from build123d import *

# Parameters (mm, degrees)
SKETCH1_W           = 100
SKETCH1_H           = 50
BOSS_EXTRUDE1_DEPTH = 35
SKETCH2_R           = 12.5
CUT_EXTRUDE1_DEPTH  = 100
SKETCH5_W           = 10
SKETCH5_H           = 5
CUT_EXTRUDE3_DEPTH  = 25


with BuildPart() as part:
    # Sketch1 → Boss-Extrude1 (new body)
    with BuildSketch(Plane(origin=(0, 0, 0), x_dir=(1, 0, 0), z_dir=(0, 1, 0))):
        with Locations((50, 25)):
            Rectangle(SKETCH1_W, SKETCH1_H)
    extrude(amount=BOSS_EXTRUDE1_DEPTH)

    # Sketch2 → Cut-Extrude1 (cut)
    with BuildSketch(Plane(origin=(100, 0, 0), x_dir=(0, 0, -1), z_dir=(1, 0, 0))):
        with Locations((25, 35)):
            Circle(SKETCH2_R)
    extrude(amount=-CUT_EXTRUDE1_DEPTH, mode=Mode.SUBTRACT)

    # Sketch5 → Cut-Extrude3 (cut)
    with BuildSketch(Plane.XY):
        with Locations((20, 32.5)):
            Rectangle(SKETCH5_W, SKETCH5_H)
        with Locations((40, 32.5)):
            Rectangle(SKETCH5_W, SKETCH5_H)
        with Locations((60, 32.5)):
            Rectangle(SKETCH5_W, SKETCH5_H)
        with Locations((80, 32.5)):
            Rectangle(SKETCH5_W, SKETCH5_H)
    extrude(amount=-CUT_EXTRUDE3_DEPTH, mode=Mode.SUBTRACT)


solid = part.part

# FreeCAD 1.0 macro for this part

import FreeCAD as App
import Part
import Sketcher

V = App.Vector


def add_polygon(sketch, points):
    """Adds a closed chain of lines whose ends are joined by coincident constraints."""
    first, n = sketch.GeometryCount, len(points)
    for a, b in zip(points, points[1:] + points[:1]):
        sketch.addGeometry(Part.LineSegment(App.Vector(*a, 0), App.Vector(*b, 0)), False)
    for i in range(n):
        sketch.addConstraint(Sketcher.Constraint("Coincident", first + i, 2, first + (i + 1) % n, 1))

doc = App.newDocument("Part")
body = doc.addObject("PartDesign::Body", "Body")

sketch1 = doc.addObject("Sketcher::SketchObject", "Sketch")
body.addObject(sketch1)
sketch1.AttachmentSupport = (doc.XZ_Plane, [""])
sketch1.MapMode = "FlatFace"
add_polygon(sketch1, [(0, -50), (0, 0), (100, 0), (100, -50)])
sketch1.addConstraint([
    Sketcher.Constraint("Vertical", 0),
    Sketcher.Constraint("Horizontal", 1),
    Sketcher.Constraint("Vertical", 2),
    Sketcher.Constraint("Horizontal", 3),
    Sketcher.Constraint("Coincident", 0, 2, -1, 1),
    Sketcher.Constraint("DistanceX", 1, 1, 1, 2, 100.0),
    Sketcher.Constraint("DistanceY", 0, 1, 0, 2, 50.0),
])
pad1 = doc.addObject("PartDesign::Pad", "Pad")
body.addObject(pad1)
pad1.Profile = sketch1
pad1.Length = 35
pad1.Reversed = True

sketch2 = doc.addObject("Sketcher::SketchObject", "Sketch001")
body.addObject(sketch2)
sketch2.AttachmentSupport = (doc.YZ_Plane, [""])
sketch2.MapMode = "FlatFace"
sketch2.AttachmentOffset = App.Placement(V(0, 0, 100), App.Rotation())
sketch2.addGeometry(Part.Circle(V(35, -25, 0), V(0, 0, 1), 12), False)
sketch2.addConstraint([
    Sketcher.Constraint("Diameter", 0, 25.0),
    Sketcher.Constraint("DistanceX", -1, 1, 0, 3, 35.0),
    Sketcher.Constraint("DistanceY", 0, 3, -1, 1, 25.0),
])
pocket1 = doc.addObject("PartDesign::Pocket", "Pocket")
body.addObject(pocket1)
pocket1.Profile = sketch2
pocket1.Length = 100

sketch3 = doc.addObject("Sketcher::SketchObject", "Sketch002")
body.addObject(sketch3)
sketch3.AttachmentSupport = (doc.XY_Plane, [""])
sketch3.MapMode = "FlatFace"
add_polygon(sketch3, [(15, 35), (15, 30), (25, 30), (25, 35)])
add_polygon(sketch3, [(35, 35), (35, 30), (45, 30), (45, 35)])
add_polygon(sketch3, [(55, 35), (55, 30), (65, 30), (65, 35)])
add_polygon(sketch3, [(75, 35), (75, 30), (85, 30), (85, 35)])
sketch3.addConstraint([
    Sketcher.Constraint("Vertical", 0),
    Sketcher.Constraint("Horizontal", 1),
    Sketcher.Constraint("Vertical", 2),
    Sketcher.Constraint("Horizontal", 3),
    Sketcher.Constraint("Vertical", 4),
    Sketcher.Constraint("Horizontal", 5),
    Sketcher.Constraint("Vertical", 6),
    Sketcher.Constraint("Horizontal", 7),
    Sketcher.Constraint("Vertical", 8),
    Sketcher.Constraint("Horizontal", 9),
    Sketcher.Constraint("Vertical", 10),
    Sketcher.Constraint("Horizontal", 11),
    Sketcher.Constraint("Vertical", 12),
    Sketcher.Constraint("Horizontal", 13),
    Sketcher.Constraint("Vertical", 14),
    Sketcher.Constraint("Horizontal", 15),
    Sketcher.Constraint("Horizontal", 1, 2, 4, 2),
    Sketcher.Constraint("Horizontal", 3, 2, 6, 2),
    Sketcher.Constraint("Horizontal", 5, 2, 8, 2),
    Sketcher.Constraint("Horizontal", 7, 2, 10, 2),
    Sketcher.Constraint("Horizontal", 9, 2, 12, 2),
    Sketcher.Constraint("Horizontal", 11, 2, 14, 2),
    Sketcher.Constraint("Equal", 3, 5),
    Sketcher.Constraint("Equal", 7, 9),
    Sketcher.Constraint("Equal", 11, 13),
    Sketcher.Constraint("DistanceX", 1, 1, 1, 2, 10.0),
    Sketcher.Constraint("DistanceY", 0, 2, 0, 1, 5.0),
    Sketcher.Constraint("DistanceX", -1, 1, 0, 2, 15.0),
    Sketcher.Constraint("DistanceY", -1, 1, 0, 2, 30.0),
    Sketcher.Constraint("DistanceX", -1, 1, 4, 2, 35.0),
    Sketcher.Constraint("DistanceX", -1, 1, 8, 2, 55.0),
    Sketcher.Constraint("DistanceX", -1, 1, 12, 2, 75.0),
])
pocket2 = doc.addObject("PartDesign::Pocket", "Pocket001")
body.addObject(pocket2)
pocket2.Profile = sketch3
pocket2.Length = 25

doc.recompute()
